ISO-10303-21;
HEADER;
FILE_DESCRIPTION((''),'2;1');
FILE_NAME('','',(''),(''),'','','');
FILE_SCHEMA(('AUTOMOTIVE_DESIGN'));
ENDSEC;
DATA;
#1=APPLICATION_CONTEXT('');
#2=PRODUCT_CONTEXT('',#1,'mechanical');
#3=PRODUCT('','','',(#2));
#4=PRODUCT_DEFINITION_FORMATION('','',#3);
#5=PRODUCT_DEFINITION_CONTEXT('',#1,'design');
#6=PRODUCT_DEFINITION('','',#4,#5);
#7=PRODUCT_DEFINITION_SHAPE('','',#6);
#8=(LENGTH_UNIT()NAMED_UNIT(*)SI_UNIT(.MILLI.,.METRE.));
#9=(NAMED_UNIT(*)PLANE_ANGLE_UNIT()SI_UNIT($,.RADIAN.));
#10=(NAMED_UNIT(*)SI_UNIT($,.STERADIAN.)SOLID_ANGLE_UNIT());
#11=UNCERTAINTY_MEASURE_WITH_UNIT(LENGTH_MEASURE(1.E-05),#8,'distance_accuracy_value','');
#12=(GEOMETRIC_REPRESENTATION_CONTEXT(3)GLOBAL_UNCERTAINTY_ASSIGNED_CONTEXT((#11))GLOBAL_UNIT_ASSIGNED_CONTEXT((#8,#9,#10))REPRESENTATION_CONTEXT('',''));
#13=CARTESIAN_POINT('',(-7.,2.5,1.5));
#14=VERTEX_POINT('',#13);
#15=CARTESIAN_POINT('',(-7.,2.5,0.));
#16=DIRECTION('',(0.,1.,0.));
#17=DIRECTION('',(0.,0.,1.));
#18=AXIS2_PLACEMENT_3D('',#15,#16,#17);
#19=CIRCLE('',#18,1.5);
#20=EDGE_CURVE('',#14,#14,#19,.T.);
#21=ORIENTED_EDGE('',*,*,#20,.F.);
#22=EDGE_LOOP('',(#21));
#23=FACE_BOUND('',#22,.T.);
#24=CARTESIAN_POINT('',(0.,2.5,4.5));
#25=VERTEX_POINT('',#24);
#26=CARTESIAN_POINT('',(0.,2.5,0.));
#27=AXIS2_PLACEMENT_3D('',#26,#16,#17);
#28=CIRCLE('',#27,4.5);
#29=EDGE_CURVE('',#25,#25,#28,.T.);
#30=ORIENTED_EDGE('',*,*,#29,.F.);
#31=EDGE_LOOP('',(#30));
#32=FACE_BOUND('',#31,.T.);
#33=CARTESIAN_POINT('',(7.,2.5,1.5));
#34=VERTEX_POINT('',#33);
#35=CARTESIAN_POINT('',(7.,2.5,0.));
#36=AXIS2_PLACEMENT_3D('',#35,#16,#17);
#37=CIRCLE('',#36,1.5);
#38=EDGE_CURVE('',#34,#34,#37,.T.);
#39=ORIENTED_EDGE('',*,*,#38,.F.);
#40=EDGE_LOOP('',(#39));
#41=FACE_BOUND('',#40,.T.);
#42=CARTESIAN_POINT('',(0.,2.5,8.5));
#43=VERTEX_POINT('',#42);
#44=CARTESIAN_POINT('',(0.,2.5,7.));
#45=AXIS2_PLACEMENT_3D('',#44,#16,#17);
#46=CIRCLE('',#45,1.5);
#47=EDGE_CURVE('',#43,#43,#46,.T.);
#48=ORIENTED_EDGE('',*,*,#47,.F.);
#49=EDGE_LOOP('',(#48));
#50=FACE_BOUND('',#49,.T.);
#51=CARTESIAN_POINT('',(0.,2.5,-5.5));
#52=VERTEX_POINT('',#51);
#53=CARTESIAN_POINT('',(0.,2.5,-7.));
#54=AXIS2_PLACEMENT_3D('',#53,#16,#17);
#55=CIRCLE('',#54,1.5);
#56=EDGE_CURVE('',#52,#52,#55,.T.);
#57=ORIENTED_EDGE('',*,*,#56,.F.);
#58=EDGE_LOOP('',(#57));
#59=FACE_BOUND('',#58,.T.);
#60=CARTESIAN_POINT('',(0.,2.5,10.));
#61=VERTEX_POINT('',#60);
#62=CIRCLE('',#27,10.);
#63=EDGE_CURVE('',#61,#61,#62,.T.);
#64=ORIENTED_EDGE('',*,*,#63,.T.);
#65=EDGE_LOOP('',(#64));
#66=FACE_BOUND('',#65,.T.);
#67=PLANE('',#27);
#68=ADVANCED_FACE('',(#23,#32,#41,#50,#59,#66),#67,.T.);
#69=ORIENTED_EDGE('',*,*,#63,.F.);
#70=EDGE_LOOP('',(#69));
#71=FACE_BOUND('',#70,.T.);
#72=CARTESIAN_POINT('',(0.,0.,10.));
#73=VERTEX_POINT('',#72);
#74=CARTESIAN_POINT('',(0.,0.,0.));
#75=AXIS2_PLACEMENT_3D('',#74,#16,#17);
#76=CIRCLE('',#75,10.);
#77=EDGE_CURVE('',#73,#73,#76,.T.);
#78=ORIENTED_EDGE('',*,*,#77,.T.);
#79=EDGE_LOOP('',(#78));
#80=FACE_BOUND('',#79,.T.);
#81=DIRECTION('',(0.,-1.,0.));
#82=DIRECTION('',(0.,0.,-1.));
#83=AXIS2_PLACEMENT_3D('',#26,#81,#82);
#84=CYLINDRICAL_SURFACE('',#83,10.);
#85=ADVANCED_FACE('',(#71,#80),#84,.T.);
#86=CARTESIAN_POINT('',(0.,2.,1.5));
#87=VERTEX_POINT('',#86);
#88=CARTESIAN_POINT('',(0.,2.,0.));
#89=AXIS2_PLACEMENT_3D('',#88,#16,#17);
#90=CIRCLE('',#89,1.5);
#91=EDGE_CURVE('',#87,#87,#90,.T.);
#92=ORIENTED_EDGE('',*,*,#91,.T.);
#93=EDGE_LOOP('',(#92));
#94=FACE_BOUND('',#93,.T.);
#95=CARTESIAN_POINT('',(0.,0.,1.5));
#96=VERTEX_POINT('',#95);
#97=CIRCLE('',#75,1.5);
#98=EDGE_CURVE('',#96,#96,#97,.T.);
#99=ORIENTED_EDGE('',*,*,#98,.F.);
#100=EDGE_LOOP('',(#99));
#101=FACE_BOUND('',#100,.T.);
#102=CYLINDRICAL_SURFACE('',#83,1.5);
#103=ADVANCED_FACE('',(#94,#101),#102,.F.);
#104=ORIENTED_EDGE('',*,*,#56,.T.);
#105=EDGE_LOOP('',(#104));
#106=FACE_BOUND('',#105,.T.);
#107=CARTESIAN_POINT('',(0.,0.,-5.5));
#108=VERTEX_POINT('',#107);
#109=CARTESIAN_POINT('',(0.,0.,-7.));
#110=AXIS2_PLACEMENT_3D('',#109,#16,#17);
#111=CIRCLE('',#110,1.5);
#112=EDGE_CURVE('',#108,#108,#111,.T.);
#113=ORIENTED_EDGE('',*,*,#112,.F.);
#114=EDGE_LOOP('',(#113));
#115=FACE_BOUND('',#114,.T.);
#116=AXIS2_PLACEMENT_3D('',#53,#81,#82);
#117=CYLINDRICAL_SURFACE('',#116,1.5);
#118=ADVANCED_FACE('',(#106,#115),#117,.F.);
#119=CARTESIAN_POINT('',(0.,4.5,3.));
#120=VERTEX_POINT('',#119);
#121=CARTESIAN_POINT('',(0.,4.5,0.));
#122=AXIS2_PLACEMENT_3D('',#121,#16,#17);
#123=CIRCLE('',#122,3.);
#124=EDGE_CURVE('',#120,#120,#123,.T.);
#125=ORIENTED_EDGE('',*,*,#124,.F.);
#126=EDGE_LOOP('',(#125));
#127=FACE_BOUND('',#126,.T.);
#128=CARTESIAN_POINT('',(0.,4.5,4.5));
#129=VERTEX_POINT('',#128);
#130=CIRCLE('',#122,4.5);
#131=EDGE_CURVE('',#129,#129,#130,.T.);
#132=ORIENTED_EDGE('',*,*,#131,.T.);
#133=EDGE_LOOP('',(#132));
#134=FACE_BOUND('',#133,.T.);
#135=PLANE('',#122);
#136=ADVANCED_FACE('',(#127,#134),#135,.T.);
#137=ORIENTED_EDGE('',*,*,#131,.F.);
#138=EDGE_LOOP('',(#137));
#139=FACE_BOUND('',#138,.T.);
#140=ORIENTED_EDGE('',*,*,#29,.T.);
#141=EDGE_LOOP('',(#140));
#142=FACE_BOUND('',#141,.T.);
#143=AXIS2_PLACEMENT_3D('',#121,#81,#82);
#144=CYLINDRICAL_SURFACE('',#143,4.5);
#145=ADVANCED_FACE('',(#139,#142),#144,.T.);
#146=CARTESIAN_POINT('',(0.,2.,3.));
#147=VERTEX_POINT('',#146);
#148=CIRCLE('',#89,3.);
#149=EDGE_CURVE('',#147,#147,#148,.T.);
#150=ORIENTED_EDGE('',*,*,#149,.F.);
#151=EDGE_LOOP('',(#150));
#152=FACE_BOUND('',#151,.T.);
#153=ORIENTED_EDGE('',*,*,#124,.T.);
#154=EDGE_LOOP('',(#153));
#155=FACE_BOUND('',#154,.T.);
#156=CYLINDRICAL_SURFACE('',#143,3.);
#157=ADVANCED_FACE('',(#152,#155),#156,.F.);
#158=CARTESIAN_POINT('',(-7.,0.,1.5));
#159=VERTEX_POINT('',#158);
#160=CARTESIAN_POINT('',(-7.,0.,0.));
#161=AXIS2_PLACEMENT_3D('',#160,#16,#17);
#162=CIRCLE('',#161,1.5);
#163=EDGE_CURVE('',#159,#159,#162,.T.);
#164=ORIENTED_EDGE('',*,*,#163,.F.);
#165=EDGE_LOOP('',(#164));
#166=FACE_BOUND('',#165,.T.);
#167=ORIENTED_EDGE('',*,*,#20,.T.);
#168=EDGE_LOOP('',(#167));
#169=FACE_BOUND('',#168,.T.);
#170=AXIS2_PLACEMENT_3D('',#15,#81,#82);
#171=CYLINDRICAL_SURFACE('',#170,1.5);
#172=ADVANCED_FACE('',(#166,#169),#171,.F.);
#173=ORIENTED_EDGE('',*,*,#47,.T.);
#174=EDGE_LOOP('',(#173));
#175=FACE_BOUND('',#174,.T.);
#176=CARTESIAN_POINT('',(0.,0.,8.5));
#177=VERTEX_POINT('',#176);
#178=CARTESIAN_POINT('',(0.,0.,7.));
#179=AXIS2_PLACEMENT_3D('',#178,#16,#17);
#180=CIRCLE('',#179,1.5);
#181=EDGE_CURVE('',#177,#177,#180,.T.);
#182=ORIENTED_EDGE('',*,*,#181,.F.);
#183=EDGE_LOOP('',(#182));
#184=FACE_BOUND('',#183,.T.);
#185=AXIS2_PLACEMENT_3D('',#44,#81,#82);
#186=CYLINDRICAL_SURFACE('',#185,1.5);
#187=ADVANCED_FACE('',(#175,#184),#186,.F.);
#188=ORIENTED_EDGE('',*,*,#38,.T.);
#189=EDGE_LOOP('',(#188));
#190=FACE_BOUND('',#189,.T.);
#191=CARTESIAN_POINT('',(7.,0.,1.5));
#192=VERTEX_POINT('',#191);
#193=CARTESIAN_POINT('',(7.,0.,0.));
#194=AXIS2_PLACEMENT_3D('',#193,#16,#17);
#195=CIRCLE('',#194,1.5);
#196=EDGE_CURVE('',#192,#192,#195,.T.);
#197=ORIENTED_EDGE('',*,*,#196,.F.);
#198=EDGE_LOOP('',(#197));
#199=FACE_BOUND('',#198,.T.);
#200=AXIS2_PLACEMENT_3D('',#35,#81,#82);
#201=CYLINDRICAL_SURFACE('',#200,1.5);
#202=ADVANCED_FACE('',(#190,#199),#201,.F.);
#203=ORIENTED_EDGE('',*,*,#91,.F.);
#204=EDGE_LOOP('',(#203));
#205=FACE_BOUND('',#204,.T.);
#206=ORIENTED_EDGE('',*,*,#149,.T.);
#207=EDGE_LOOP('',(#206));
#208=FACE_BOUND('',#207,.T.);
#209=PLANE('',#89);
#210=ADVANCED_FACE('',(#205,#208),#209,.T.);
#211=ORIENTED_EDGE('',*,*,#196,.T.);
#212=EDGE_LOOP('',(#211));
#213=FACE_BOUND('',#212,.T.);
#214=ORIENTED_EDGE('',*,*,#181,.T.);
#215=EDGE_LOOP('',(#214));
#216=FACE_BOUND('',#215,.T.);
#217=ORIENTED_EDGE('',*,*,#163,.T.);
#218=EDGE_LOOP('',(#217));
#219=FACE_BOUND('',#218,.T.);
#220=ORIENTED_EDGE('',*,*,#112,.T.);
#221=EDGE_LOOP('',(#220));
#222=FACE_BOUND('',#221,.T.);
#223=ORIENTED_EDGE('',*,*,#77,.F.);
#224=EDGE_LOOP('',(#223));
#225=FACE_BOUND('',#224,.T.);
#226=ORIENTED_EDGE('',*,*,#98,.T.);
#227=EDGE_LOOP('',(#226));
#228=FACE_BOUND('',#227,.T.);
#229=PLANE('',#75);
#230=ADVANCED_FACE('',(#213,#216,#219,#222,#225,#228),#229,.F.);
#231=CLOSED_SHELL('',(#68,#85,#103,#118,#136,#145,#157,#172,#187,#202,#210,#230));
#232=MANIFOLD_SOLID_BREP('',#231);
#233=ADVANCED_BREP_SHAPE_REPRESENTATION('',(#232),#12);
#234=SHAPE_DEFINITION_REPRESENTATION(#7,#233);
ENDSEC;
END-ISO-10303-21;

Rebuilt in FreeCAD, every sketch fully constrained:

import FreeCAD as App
import Part
import Sketcher
from FreeCAD import Vector
Q = App.Units.Quantity

doc = App.newDocument("Part")
body = doc.addObject("PartDesign::Body", "Body")

sketch1 = doc.addObject("Sketcher::SketchObject", "Sketch")
body.addObject(sketch1)
sketch1.AttachmentSupport = (doc.XZ_Plane, [""])
sketch1.MapMode = "FlatFace"
sketch1.addGeometry([
    Part.Circle(Vector(0, 0, 0), Vector(0, 0, 1), 10),
    Part.Circle(Vector(0, -7, 0), Vector(0, 0, 1), 1.5),
    Part.Circle(Vector(-7, 0, 0), Vector(0, 0, 1), 1.5),
    Part.Circle(Vector(7, 0, 0), Vector(0, 0, 1), 1.5),
    Part.Circle(Vector(0, 0, 0), Vector(0, 0, 1), 1.5),
    Part.Circle(Vector(0, 7, 0), Vector(0, 0, 1), 1.5),
], False)
sketch1.addConstraint([
    Sketcher.Constraint("Coincident", 0, 3, -1, 1),
    Sketcher.Constraint("Coincident", 4, 3, -1, 1),
    Sketcher.Constraint("Equal", 1, 2),
    Sketcher.Constraint("Equal", 2, 3),
    Sketcher.Constraint("Equal", 3, 4),
    Sketcher.Constraint("Equal", 4, 5),
    Sketcher.Constraint("Symmetric", 2, 3, 3, 3, -1, 1),
    Sketcher.Constraint("Symmetric", 1, 3, 5, 3, -1, 1),
    Sketcher.Constraint("PointOnObject", 1, 3, -2),
    Sketcher.Constraint("PointOnObject", 2, 3, -1),
    Sketcher.Constraint("Diameter", 0, Q("20 mm")),
    Sketcher.Constraint("Diameter", 1, Q("3 mm")),
    Sketcher.Constraint("DistanceY", 1, 3, -1, 1, Q("7 mm")),
    Sketcher.Constraint("DistanceX", 2, 3, -1, 1, Q("7 mm")),
])
pad1 = doc.addObject("PartDesign::Pad", "Pad")
body.addObject(pad1)
pad1.Profile = sketch1
pad1.Length = 2.5
pad1.Reversed = True

sketch2 = doc.addObject("Sketcher::SketchObject", "Sketch001")
body.addObject(sketch2)
sketch2.AttachmentSupport = (doc.XZ_Plane, [""])
sketch2.MapMode = "FlatFace"
sketch2.AttachmentOffset = App.Placement(Vector(0, 0, -2.5), App.Rotation())
sketch2.addGeometry([
    Part.Circle(Vector(0, 0, 0), Vector(0, 0, 1), 4.5),
    Part.Circle(Vector(0, 0, 0), Vector(0, 0, 1), 3),
], False)
sketch2.addConstraint([
    Sketcher.Constraint("Coincident", 0, 3, -1, 1),
    Sketcher.Constraint("Coincident", 1, 3, -1, 1),
    Sketcher.Constraint("Diameter", 0, Q("9 mm")),
    Sketcher.Constraint("Diameter", 1, Q("6 mm")),
])
pad2 = doc.addObject("PartDesign::Pad", "Pad001")
body.addObject(pad2)
pad2.Profile = sketch2
pad2.Length = 2
pad2.Reversed = True

sketch3 = doc.addObject("Sketcher::SketchObject", "Sketch002")
body.addObject(sketch3)
sketch3.AttachmentSupport = (doc.XZ_Plane, [""])
sketch3.MapMode = "FlatFace"
sketch3.AttachmentOffset = App.Placement(Vector(0, 0, -2), App.Rotation())
sketch3.addGeometry(Part.Circle(Vector(0, 0, 0), Vector(0, 0, 1), 3), False)
sketch3.addConstraint([
    Sketcher.Constraint("Coincident", 0, 3, -1, 1),
    Sketcher.Constraint("Diameter", 0, Q("6 mm")),
])
pocket1 = doc.addObject("PartDesign::Pocket", "Pocket")
body.addObject(pocket1)
pocket1.Profile = sketch3
pocket1.Length = 0.5

doc.recompute()
